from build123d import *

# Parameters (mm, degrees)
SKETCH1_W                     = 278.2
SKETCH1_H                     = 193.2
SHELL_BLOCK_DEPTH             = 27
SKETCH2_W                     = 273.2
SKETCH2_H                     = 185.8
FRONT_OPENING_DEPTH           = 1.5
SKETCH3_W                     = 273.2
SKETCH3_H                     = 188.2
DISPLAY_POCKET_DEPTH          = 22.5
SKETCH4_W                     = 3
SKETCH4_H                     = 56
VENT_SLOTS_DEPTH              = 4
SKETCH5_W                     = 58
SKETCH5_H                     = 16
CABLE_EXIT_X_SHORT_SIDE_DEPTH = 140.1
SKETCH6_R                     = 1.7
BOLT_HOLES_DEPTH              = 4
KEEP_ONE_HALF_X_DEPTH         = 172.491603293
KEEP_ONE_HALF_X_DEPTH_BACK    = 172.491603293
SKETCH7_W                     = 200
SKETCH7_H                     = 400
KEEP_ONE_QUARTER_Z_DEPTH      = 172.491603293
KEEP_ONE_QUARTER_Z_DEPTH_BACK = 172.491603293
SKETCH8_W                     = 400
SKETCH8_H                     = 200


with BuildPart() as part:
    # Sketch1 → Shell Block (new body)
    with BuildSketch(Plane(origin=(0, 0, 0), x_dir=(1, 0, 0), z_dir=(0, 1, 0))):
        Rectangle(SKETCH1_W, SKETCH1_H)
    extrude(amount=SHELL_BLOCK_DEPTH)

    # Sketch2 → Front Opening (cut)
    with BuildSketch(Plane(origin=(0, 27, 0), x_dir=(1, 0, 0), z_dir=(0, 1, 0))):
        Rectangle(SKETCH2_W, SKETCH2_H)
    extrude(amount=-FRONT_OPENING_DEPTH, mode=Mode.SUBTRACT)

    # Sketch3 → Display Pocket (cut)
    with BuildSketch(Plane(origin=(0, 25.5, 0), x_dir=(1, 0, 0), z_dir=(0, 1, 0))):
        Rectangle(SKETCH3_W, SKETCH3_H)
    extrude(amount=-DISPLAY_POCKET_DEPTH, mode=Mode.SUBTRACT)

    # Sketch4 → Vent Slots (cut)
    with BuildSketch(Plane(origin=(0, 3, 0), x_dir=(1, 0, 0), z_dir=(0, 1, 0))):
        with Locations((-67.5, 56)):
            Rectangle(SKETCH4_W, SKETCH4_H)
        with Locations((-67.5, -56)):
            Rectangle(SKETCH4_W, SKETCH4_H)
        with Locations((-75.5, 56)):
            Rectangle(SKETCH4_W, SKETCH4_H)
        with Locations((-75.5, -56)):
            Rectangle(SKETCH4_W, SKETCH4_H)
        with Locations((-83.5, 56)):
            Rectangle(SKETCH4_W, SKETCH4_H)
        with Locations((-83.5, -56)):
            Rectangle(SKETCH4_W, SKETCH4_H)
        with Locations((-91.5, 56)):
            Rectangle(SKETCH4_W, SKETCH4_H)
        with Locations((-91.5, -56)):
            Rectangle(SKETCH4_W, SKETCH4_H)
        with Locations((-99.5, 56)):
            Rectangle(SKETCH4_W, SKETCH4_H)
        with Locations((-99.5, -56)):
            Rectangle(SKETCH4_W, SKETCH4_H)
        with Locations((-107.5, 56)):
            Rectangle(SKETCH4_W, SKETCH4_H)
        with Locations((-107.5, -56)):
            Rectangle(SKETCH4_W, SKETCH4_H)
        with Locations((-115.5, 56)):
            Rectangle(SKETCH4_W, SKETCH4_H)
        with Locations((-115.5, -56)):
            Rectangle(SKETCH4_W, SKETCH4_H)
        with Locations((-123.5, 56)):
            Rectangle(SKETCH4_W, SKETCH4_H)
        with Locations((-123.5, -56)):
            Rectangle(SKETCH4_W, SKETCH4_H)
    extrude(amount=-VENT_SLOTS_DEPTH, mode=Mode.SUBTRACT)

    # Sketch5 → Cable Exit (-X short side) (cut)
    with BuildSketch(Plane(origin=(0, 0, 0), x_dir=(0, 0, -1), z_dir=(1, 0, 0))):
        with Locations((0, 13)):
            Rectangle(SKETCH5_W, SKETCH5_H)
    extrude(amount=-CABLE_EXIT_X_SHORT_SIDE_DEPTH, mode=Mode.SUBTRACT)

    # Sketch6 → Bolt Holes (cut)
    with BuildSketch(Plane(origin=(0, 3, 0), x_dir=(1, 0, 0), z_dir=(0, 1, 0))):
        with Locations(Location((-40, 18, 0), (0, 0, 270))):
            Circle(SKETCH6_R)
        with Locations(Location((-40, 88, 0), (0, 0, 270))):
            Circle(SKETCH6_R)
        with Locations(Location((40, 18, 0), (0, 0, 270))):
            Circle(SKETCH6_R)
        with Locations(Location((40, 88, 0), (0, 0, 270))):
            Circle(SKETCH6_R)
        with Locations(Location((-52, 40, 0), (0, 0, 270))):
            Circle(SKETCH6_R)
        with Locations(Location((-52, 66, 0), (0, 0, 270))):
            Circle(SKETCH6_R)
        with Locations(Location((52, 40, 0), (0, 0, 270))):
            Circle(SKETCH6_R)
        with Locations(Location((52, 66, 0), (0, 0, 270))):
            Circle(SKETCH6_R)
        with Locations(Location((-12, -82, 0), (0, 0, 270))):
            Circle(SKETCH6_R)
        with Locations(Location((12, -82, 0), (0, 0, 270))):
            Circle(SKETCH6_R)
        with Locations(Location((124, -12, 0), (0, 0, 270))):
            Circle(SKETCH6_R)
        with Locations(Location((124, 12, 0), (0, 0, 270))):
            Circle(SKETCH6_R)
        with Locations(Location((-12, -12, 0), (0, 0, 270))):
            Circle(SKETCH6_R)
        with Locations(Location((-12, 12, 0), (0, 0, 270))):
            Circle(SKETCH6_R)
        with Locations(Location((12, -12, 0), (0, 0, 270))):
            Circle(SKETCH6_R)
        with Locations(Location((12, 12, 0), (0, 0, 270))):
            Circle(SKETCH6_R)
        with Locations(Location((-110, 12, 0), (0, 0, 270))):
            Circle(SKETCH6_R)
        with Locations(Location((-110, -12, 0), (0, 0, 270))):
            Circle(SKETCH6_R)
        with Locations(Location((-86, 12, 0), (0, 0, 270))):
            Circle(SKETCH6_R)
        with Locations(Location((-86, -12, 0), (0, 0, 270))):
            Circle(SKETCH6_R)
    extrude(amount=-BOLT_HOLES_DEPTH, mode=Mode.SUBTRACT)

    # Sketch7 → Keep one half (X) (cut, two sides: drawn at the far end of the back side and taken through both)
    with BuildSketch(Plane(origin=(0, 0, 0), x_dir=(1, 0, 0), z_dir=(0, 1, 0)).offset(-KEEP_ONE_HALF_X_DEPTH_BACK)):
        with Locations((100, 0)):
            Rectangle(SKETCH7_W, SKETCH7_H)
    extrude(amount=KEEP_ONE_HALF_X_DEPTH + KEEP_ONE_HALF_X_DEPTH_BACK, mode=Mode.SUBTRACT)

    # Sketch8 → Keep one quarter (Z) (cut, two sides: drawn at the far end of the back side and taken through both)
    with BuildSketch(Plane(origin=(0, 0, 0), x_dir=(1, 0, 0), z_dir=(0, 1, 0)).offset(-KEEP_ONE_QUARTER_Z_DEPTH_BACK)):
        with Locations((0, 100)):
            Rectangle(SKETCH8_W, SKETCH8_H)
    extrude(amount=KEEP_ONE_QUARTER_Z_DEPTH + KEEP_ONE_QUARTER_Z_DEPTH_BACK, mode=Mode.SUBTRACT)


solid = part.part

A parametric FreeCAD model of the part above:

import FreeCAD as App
import Part
import Sketcher
from FreeCAD import Vector


def add_polygon(sketch, points):
    """Adds a closed chain of lines whose ends are joined by coincident constraints."""
    first, n = sketch.GeometryCount, len(points)
    for a, b in zip(points, points[1:] + points[:1]):
        sketch.addGeometry(Part.LineSegment(App.Vector(*a, 0), App.Vector(*b, 0)), False)
    for i in range(n):
        sketch.addConstraint(Sketcher.Constraint("Coincident", first + i, 2, first + (i + 1) % n, 1))

doc = App.newDocument("Part")
body = doc.addObject("PartDesign::Body", "Body")

sketch1 = body.newObject("Sketcher::SketchObject", "Sketch")
sketch1.AttachmentSupport = (doc.getObject("XZ_Plane"), [""])
sketch1.MapMode = "FlatFace"
add_polygon(sketch1, [(-139, -97), (-139, 97), (139, 97), (139, -97)])
sketch1.addConstraint(Sketcher.Constraint("Vertical", 0))
sketch1.addConstraint(Sketcher.Constraint("Horizontal", 1))
sketch1.addConstraint(Sketcher.Constraint("Vertical", 2))
sketch1.addConstraint(Sketcher.Constraint("Horizontal", 3))
sketch1.addConstraint(Sketcher.Constraint("Symmetric", 0, 2, 2, 2, -1, 1))
sketch1.addConstraint(Sketcher.Constraint("DistanceX", 1, 1, 1, 2, 278.2))
sketch1.addConstraint(Sketcher.Constraint("DistanceY", 0, 1, 0, 2, 193.2))
pad1 = body.newObject("PartDesign::Pad", "Pad")
pad1.Profile = sketch1
pad1.Length = 27
pad1.Reversed = True

sketch2 = body.newObject("Sketcher::SketchObject", "Sketch001")
sketch2.AttachmentSupport = (doc.getObject("XZ_Plane"), [""])
sketch2.MapMode = "FlatFace"
sketch2.AttachmentOffset = App.Placement(Vector(0, 0, -27), App.Rotation())
add_polygon(sketch2, [(-137, -93), (-137, 93), (137, 93), (137, -93)])
sketch2.addConstraint(Sketcher.Constraint("Vertical", 0))
sketch2.addConstraint(Sketcher.Constraint("Horizontal", 1))
sketch2.addConstraint(Sketcher.Constraint("Vertical", 2))
sketch2.addConstraint(Sketcher.Constraint("Horizontal", 3))
sketch2.addConstraint(Sketcher.Constraint("Symmetric", 0, 2, 2, 2, -1, 1))
sketch2.addConstraint(Sketcher.Constraint("DistanceX", 1, 1, 1, 2, 273.2))
sketch2.addConstraint(Sketcher.Constraint("DistanceY", 0, 1, 0, 2, 185.8))
pocket1 = body.newObject("PartDesign::Pocket", "Pocket")
pocket1.Profile = sketch2
pocket1.Length = 1.5
pocket1.Reversed = True

sketch3 = body.newObject("Sketcher::SketchObject", "Sketch002")
sketch3.AttachmentSupport = (doc.getObject("XZ_Plane"), [""])
sketch3.MapMode = "FlatFace"
sketch3.AttachmentOffset = App.Placement(Vector(0, 0, -25.5), App.Rotation())
add_polygon(sketch3, [(-137, -94), (-137, 94), (137, 94), (137, -94)])
sketch3.addConstraint(Sketcher.Constraint("Vertical", 0))
sketch3.addConstraint(Sketcher.Constraint("Horizontal", 1))
sketch3.addConstraint(Sketcher.Constraint("Vertical", 2))
sketch3.addConstraint(Sketcher.Constraint("Horizontal", 3))
sketch3.addConstraint(Sketcher.Constraint("Symmetric", 0, 2, 2, 2, -1, 1))
sketch3.addConstraint(Sketcher.Constraint("DistanceX", 1, 1, 1, 2, 273.2))
sketch3.addConstraint(Sketcher.Constraint("DistanceY", 0, 1, 0, 2, 188.2))
pocket2 = body.newObject("PartDesign::Pocket", "Pocket001")
pocket2.Profile = sketch3
pocket2.Length = 22.5
pocket2.Reversed = True

sketch4 = body.newObject("Sketcher::SketchObject", "Sketch003")
sketch4.AttachmentSupport = (doc.getObject("XZ_Plane"), [""])
sketch4.MapMode = "FlatFace"
sketch4.AttachmentOffset = App.Placement(Vector(0, 0, -3), App.Rotation())
add_polygon(sketch4, [(-69, -84), (-69, -28), (-66, -28), (-66, -84)])
add_polygon(sketch4, [(-69, 28), (-69, 84), (-66, 84), (-66, 28)])
add_polygon(sketch4, [(-77, -84), (-77, -28), (-74, -28), (-74, -84)])
add_polygon(sketch4, [(-77, 28), (-77, 84), (-74, 84), (-74, 28)])
add_polygon(sketch4, [(-85, -84), (-85, -28), (-82, -28), (-82, -84)])
add_polygon(sketch4, [(-85, 28), (-85, 84), (-82, 84), (-82, 28)])
add_polygon(sketch4, [(-93, -84), (-93, -28), (-90, -28), (-90, -84)])
add_polygon(sketch4, [(-93, 28), (-93, 84), (-90, 84), (-90, 28)])
add_polygon(sketch4, [(-101, -84), (-101, -28), (-98, -28), (-98, -84)])
add_polygon(sketch4, [(-101, 28), (-101, 84), (-98, 84), (-98, 28)])
add_polygon(sketch4, [(-109, -84), (-109, -28), (-106, -28), (-106, -84)])
add_polygon(sketch4, [(-109, 28), (-109, 84), (-106, 84), (-106, 28)])
add_polygon(sketch4, [(-117, -84), (-117, -28), (-114, -28), (-114, -84)])
add_polygon(sketch4, [(-117, 28), (-117, 84), (-114, 84), (-114, 28)])
add_polygon(sketch4, [(-125, -84), (-125, -28), (-122, -28), (-122, -84)])
add_polygon(sketch4, [(-125, 28), (-125, 84), (-122, 84), (-122, 28)])
sketch4.addConstraint(Sketcher.Constraint("Vertical", 0))
sketch4.addConstraint(Sketcher.Constraint("Horizontal", 1))
sketch4.addConstraint(Sketcher.Constraint("Vertical", 2))
sketch4.addConstraint(Sketcher.Constraint("Horizontal", 3))
sketch4.addConstraint(Sketcher.Constraint("Vertical", 4))
sketch4.addConstraint(Sketcher.Constraint("Horizontal", 5))
sketch4.addConstraint(Sketcher.Constraint("Vertical", 6))
sketch4.addConstraint(Sketcher.Constraint("Horizontal", 7))
sketch4.addConstraint(Sketcher.Constraint("Vertical", 8))
sketch4.addConstraint(Sketcher.Constraint("Horizontal", 9))
sketch4.addConstraint(Sketcher.Constraint("Vertical", 10))
sketch4.addConstraint(Sketcher.Constraint("Horizontal", 11))
sketch4.addConstraint(Sketcher.Constraint("Vertical", 12))
sketch4.addConstraint(Sketcher.Constraint("Horizontal", 13))
sketch4.addConstraint(Sketcher.Constraint("Vertical", 14))
sketch4.addConstraint(Sketcher.Constraint("Horizontal", 15))
sketch4.addConstraint(Sketcher.Constraint("Vertical", 16))
sketch4.addConstraint(Sketcher.Constraint("Horizontal", 17))
sketch4.addConstraint(Sketcher.Constraint("Vertical", 18))
sketch4.addConstraint(Sketcher.Constraint("Horizontal", 19))
sketch4.addConstraint(Sketcher.Constraint("Vertical", 20))
sketch4.addConstraint(Sketcher.Constraint("Horizontal", 21))
sketch4.addConstraint(Sketcher.Constraint("Vertical", 22))
sketch4.addConstraint(Sketcher.Constraint("Horizontal", 23))
sketch4.addConstraint(Sketcher.Constraint("Vertical", 24))
sketch4.addConstraint(Sketcher.Constraint("Horizontal", 25))
sketch4.addConstraint(Sketcher.Constraint("Vertical", 26))
sketch4.addConstraint(Sketcher.Constraint("Horizontal", 27))
sketch4.addConstraint(Sketcher.Constraint("Vertical", 28))
sketch4.addConstraint(Sketcher.Constraint("Horizontal", 29))
sketch4.addConstraint(Sketcher.Constraint("Vertical", 30))
sketch4.addConstraint(Sketcher.Constraint("Horizontal", 31))
sketch4.addConstraint(Sketcher.Constraint("Vertical", 32))
sketch4.addConstraint(Sketcher.Constraint("Horizontal", 33))
sketch4.addConstraint(Sketcher.Constraint("Vertical", 34))
sketch4.addConstraint(Sketcher.Constraint("Horizontal", 35))
sketch4.addConstraint(Sketcher.Constraint("Vertical", 36))
sketch4.addConstraint(Sketcher.Constraint("Horizontal", 37))
sketch4.addConstraint(Sketcher.Constraint("Vertical", 38))
sketch4.addConstraint(Sketcher.Constraint("Horizontal", 39))
sketch4.addConstraint(Sketcher.Constraint("Vertical", 40))
sketch4.addConstraint(Sketcher.Constraint("Horizontal", 41))
sketch4.addConstraint(Sketcher.Constraint("Vertical", 42))
sketch4.addConstraint(Sketcher.Constraint("Horizontal", 43))
sketch4.addConstraint(Sketcher.Constraint("Vertical", 44))
sketch4.addConstraint(Sketcher.Constraint("Horizontal", 45))
sketch4.addConstraint(Sketcher.Constraint("Vertical", 46))
sketch4.addConstraint(Sketcher.Constraint("Horizontal", 47))
sketch4.addConstraint(Sketcher.Constraint("Vertical", 48))
sketch4.addConstraint(Sketcher.Constraint("Horizontal", 49))
sketch4.addConstraint(Sketcher.Constraint("Vertical", 50))
sketch4.addConstraint(Sketcher.Constraint("Horizontal", 51))
sketch4.addConstraint(Sketcher.Constraint("Vertical", 52))
sketch4.addConstraint(Sketcher.Constraint("Horizontal", 53))
sketch4.addConstraint(Sketcher.Constraint("Vertical", 54))
sketch4.addConstraint(Sketcher.Constraint("Horizontal", 55))
sketch4.addConstraint(Sketcher.Constraint("Vertical", 56))
sketch4.addConstraint(Sketcher.Constraint("Horizontal", 57))
sketch4.addConstraint(Sketcher.Constraint("Vertical", 58))
sketch4.addConstraint(Sketcher.Constraint("Horizontal", 59))
sketch4.addConstraint(Sketcher.Constraint("Vertical", 60))
sketch4.addConstraint(Sketcher.Constraint("Horizontal", 61))
sketch4.addConstraint(Sketcher.Constraint("Vertical", 62))
sketch4.addConstraint(Sketcher.Constraint("Horizontal", 63))
sketch4.addConstraint(Sketcher.Constraint("Symmetric", 3, 2, 4, 2, -1))
sketch4.addConstraint(Sketcher.Constraint("Symmetric", 1, 2, 6, 2, -1))
sketch4.addConstraint(Sketcher.Constraint("Symmetric", 11, 2, 12, 2, -1))
sketch4.addConstraint(Sketcher.Constraint("Symmetric", 9, 2, 14, 2, -1))
sketch4.addConstraint(Sketcher.Constraint("Symmetric", 19, 2, 20, 2, -1))
sketch4.addConstraint(Sketcher.Constraint("Symmetric", 17, 2, 22, 2, -1))
sketch4.addConstraint(Sketcher.Constraint("Symmetric", 27, 2, 28, 2, -1))
sketch4.addConstraint(Sketcher.Constraint("Symmetric", 25, 2, 30, 2, -1))
sketch4.addConstraint(Sketcher.Constraint("Symmetric", 35, 2, 36, 2, -1))
sketch4.addConstraint(Sketcher.Constraint("Symmetric", 33, 2, 38, 2, -1))
sketch4.addConstraint(Sketcher.Constraint("Symmetric", 43, 2, 44, 2, -1))
sketch4.addConstraint(Sketcher.Constraint("Symmetric", 41, 2, 46, 2, -1))
sketch4.addConstraint(Sketcher.Constraint("Symmetric", 51, 2, 52, 2, -1))
sketch4.addConstraint(Sketcher.Constraint("Symmetric", 49, 2, 54, 2, -1))
sketch4.addConstraint(Sketcher.Constraint("Symmetric", 59, 2, 60, 2, -1))
sketch4.addConstraint(Sketcher.Constraint("Symmetric", 57, 2, 62, 2, -1))
sketch4.addConstraint(Sketcher.Constraint("Horizontal", 1, 2, 8, 2))
sketch4.addConstraint(Sketcher.Constraint("Horizontal", 3, 2, 10, 2))
sketch4.addConstraint(Sketcher.Constraint("Horizontal", 9, 2, 16, 2))
sketch4.addConstraint(Sketcher.Constraint("Horizontal", 11, 2, 18, 2))
sketch4.addConstraint(Sketcher.Constraint("Horizontal", 17, 2, 24, 2))
sketch4.addConstraint(Sketcher.Constraint("Horizontal", 19, 2, 26, 2))
sketch4.addConstraint(Sketcher.Constraint("Horizontal", 25, 2, 32, 2))
sketch4.addConstraint(Sketcher.Constraint("Horizontal", 27, 2, 34, 2))
sketch4.addConstraint(Sketcher.Constraint("Horizontal", 33, 2, 40, 2))
sketch4.addConstraint(Sketcher.Constraint("Horizontal", 35, 2, 42, 2))
sketch4.addConstraint(Sketcher.Constraint("Horizontal", 41, 2, 48, 2))
sketch4.addConstraint(Sketcher.Constraint("Horizontal", 43, 2, 50, 2))
sketch4.addConstraint(Sketcher.Constraint("Horizontal", 49, 2, 56, 2))
sketch4.addConstraint(Sketcher.Constraint("Horizontal", 51, 2, 58, 2))
sketch4.addConstraint(Sketcher.Constraint("Equal", 7, 9))
sketch4.addConstraint(Sketcher.Constraint("Equal", 15, 17))
sketch4.addConstraint(Sketcher.Constraint("Equal", 23, 25))
sketch4.addConstraint(Sketcher.Constraint("Equal", 31, 33))
sketch4.addConstraint(Sketcher.Constraint("Equal", 39, 41))
sketch4.addConstraint(Sketcher.Constraint("Equal", 47, 49))
sketch4.addConstraint(Sketcher.Constraint("Equal", 55, 57))
sketch4.addConstraint(Sketcher.Constraint("DistanceX", 1, 1, 1, 2, 3.0))
sketch4.addConstraint(Sketcher.Constraint("DistanceY", 0, 1, 0, 2, 56.0))
sketch4.addConstraint(Sketcher.Constraint("DistanceX", 0, 2, -1, 1, 69.0))
sketch4.addConstraint(Sketcher.Constraint("DistanceY", 0, 2, -1, 1, 28.0))
sketch4.addConstraint(Sketcher.Constraint("DistanceX", 8, 2, -1, 1, 77.0))
sketch4.addConstraint(Sketcher.Constraint("DistanceX", 16, 2, -1, 1, 85.0))
sketch4.addConstraint(Sketcher.Constraint("DistanceX", 24, 2, -1, 1, 93.0))
sketch4.addConstraint(Sketcher.Constraint("DistanceX", 32, 2, -1, 1, 101.0))
sketch4.addConstraint(Sketcher.Constraint("DistanceX", 40, 2, -1, 1, 109.0))
sketch4.addConstraint(Sketcher.Constraint("DistanceX", 48, 2, -1, 1, 117.0))
sketch4.addConstraint(Sketcher.Constraint("DistanceX", 56, 2, -1, 1, 125.0))
pocket3 = body.newObject("PartDesign::Pocket", "Pocket002")
pocket3.Profile = sketch4
pocket3.Length = 4
pocket3.Reversed = True

sketch5 = body.newObject("Sketcher::SketchObject", "Sketch004")
sketch5.AttachmentSupport = (doc.getObject("YZ_Plane"), [""])
sketch5.MapMode = "FlatFace"
add_polygon(sketch5, [(21, 29), (5, 29), (5, -29), (21, -29)])
sketch5.addConstraint(Sketcher.Constraint("Horizontal", 0))
sketch5.addConstraint(Sketcher.Constraint("Vertical", 1))
sketch5.addConstraint(Sketcher.Constraint("Horizontal", 2))
sketch5.addConstraint(Sketcher.Constraint("Vertical", 3))
sketch5.addConstraint(Sketcher.Constraint("DistanceX", 0, 2, 0, 1, 16.0))
sketch5.addConstraint(Sketcher.Constraint("DistanceY", 1, 2, 1, 1, 58.0))
sketch5.addConstraint(Sketcher.Constraint("DistanceX", -1, 1, 0, 2, 5.0))
sketch5.addConstraint(Sketcher.Constraint("DistanceY", -1, 1, 0, 2, 29.0))
pocket4 = body.newObject("PartDesign::Pocket", "Pocket003")
pocket4.Profile = sketch5
pocket4.Length = 140.1

sketch6 = body.newObject("Sketcher::SketchObject", "Sketch005")
sketch6.AttachmentSupport = (doc.getObject("XZ_Plane"), [""])
sketch6.MapMode = "FlatFace"
sketch6.AttachmentOffset = App.Placement(Vector(0, 0, -3), App.Rotation())
sketch6.addGeometry(Part.Circle(Vector(-40, -18, 0), Vector(0, 0, 1), 1.7), False)
sketch6.addGeometry(Part.Circle(Vector(-40, -88, 0), Vector(0, 0, 1), 1.7), False)
sketch6.addGeometry(Part.Circle(Vector(40, -18, 0), Vector(0, 0, 1), 1.7), False)
sketch6.addGeometry(Part.Circle(Vector(40, -88, 0), Vector(0, 0, 1), 1.7), False)
sketch6.addGeometry(Part.Circle(Vector(-52, -40, 0), Vector(0, 0, 1), 1.7), False)
sketch6.addGeometry(Part.Circle(Vector(-52, -66, 0), Vector(0, 0, 1), 1.7), False)
sketch6.addGeometry(Part.Circle(Vector(52, -40, 0), Vector(0, 0, 1), 1.7), False)
sketch6.addGeometry(Part.Circle(Vector(52, -66, 0), Vector(0, 0, 1), 1.7), False)
sketch6.addGeometry(Part.Circle(Vector(-12, 82, 0), Vector(0, 0, 1), 1.7), False)
sketch6.addGeometry(Part.Circle(Vector(12, 82, 0), Vector(0, 0, 1), 1.7), False)
sketch6.addGeometry(Part.Circle(Vector(124, 12, 0), Vector(0, 0, 1), 1.7), False)
sketch6.addGeometry(Part.Circle(Vector(124, -12, 0), Vector(0, 0, 1), 1.7), False)
sketch6.addGeometry(Part.Circle(Vector(-12, 12, 0), Vector(0, 0, 1), 1.7), False)
sketch6.addGeometry(Part.Circle(Vector(-12, -12, 0), Vector(0, 0, 1), 1.7), False)
sketch6.addGeometry(Part.Circle(Vector(12, 12, 0), Vector(0, 0, 1), 1.7), False)
sketch6.addGeometry(Part.Circle(Vector(12, -12, 0), Vector(0, 0, 1), 1.7), False)
sketch6.addGeometry(Part.Circle(Vector(-110, -12, 0), Vector(0, 0, 1), 1.7), False)
sketch6.addGeometry(Part.Circle(Vector(-110, 12, 0), Vector(0, 0, 1), 1.7), False)
sketch6.addGeometry(Part.Circle(Vector(-86, -12, 0), Vector(0, 0, 1), 1.7), False)
sketch6.addGeometry(Part.Circle(Vector(-86, 12, 0), Vector(0, 0, 1), 1.7), False)
sketch6.addConstraint(Sketcher.Constraint("Equal", 0, 1))
sketch6.addConstraint(Sketcher.Constraint("Equal", 1, 2))
sketch6.addConstraint(Sketcher.Constraint("Equal", 2, 3))
sketch6.addConstraint(Sketcher.Constraint("Equal", 3, 4))
sketch6.addConstraint(Sketcher.Constraint("Equal", 4, 5))
sketch6.addConstraint(Sketcher.Constraint("Equal", 5, 6))
sketch6.addConstraint(Sketcher.Constraint("Equal", 6, 7))
sketch6.addConstraint(Sketcher.Constraint("Equal", 7, 8))
sketch6.addConstraint(Sketcher.Constraint("Equal", 8, 9))
sketch6.addConstraint(Sketcher.Constraint("Equal", 9, 10))
sketch6.addConstraint(Sketcher.Constraint("Equal", 10, 11))
sketch6.addConstraint(Sketcher.Constraint("Equal", 11, 12))
sketch6.addConstraint(Sketcher.Constraint("Equal", 12, 13))
sketch6.addConstraint(Sketcher.Constraint("Equal", 13, 14))
sketch6.addConstraint(Sketcher.Constraint("Equal", 14, 15))
sketch6.addConstraint(Sketcher.Constraint("Equal", 15, 16))
sketch6.addConstraint(Sketcher.Constraint("Equal", 16, 17))
sketch6.addConstraint(Sketcher.Constraint("Equal", 17, 18))
sketch6.addConstraint(Sketcher.Constraint("Equal", 18, 19))
sketch6.addConstraint(Sketcher.Constraint("Symmetric", 13, 3, 14, 3, -1, 1))
sketch6.addConstraint(Sketcher.Constraint("Symmetric", 12, 3, 15, 3, -1, 1))
sketch6.addConstraint(Sketcher.Constraint("Symmetric", 0, 3, 2, 3, -2))
sketch6.addConstraint(Sketcher.Constraint("Symmetric", 1, 3, 3, 3, -2))
sketch6.addConstraint(Sketcher.Constraint("Symmetric", 4, 3, 6, 3, -2))
sketch6.addConstraint(Sketcher.Constraint("Symmetric", 5, 3, 7, 3, -2))
sketch6.addConstraint(Sketcher.Constraint("Symmetric", 8, 3, 9, 3, -2))
sketch6.addConstraint(Sketcher.Constraint("Symmetric", 12, 3, 14, 3, -2))
sketch6.addConstraint(Sketcher.Constraint("Symmetric", 10, 3, 11, 3, -1))
sketch6.addConstraint(Sketcher.Constraint("Symmetric", 16, 3, 17, 3, -1))
sketch6.addConstraint(Sketcher.Constraint("Symmetric", 18, 3, 19, 3, -1))
sketch6.addConstraint(Sketcher.Constraint("Horizontal", 10, 3, 12, 3))
sketch6.addConstraint(Sketcher.Constraint("Horizontal", 15, 3, 16, 3))
sketch6.addConstraint(Sketcher.Constraint("Horizontal", 16, 3, 18, 3))
sketch6.addConstraint(Sketcher.Constraint("Vertical", 0, 3, 1, 3))
sketch6.addConstraint(Sketcher.Constraint("Vertical", 4, 3, 5, 3))
sketch6.addConstraint(Sketcher.Constraint("Vertical", 8, 3, 12, 3))
sketch6.addConstraint(Sketcher.Constraint("Diameter", 0, 3.4))
sketch6.addConstraint(Sketcher.Constraint("DistanceX", 0, 3, -1, 1, 40.0))
sketch6.addConstraint(Sketcher.Constraint("DistanceY", 0, 3, -1, 1, 18.0))
sketch6.addConstraint(Sketcher.Constraint("DistanceY", 1, 3, -1, 1, 88.0))
sketch6.addConstraint(Sketcher.Constraint("DistanceX", 4, 3, -1, 1, 52.0))
sketch6.addConstraint(Sketcher.Constraint("DistanceY", 4, 3, -1, 1, 40.0))
sketch6.addConstraint(Sketcher.Constraint("DistanceY", 5, 3, -1, 1, 66.0))
sketch6.addConstraint(Sketcher.Constraint("DistanceX", 8, 3, -1, 1, 12.0))
sketch6.addConstraint(Sketcher.Constraint("DistanceY", -1, 1, 8, 3, 82.0))
sketch6.addConstraint(Sketcher.Constraint("DistanceX", -1, 1, 10, 3, 124.0))
sketch6.addConstraint(Sketcher.Constraint("DistanceY", -1, 1, 10, 3, 12.0))
sketch6.addConstraint(Sketcher.Constraint("DistanceX", 16, 3, -1, 1, 110.0))
sketch6.addConstraint(Sketcher.Constraint("DistanceX", 18, 3, -1, 1, 86.0))
pocket5 = body.newObject("PartDesign::Pocket", "Pocket004")
pocket5.Profile = sketch6
pocket5.Length = 4
pocket5.Reversed = True

sketch7 = body.newObject("Sketcher::SketchObject", "Sketch006")
sketch7.AttachmentSupport = (doc.getObject("XZ_Plane"), [""])
sketch7.MapMode = "FlatFace"
add_polygon(sketch7, [(0, -200), (0, 200), (200, 200), (200, -200)])
sketch7.addConstraint(Sketcher.Constraint("Vertical", 0))
sketch7.addConstraint(Sketcher.Constraint("Horizontal", 1))
sketch7.addConstraint(Sketcher.Constraint("Vertical", 2))
sketch7.addConstraint(Sketcher.Constraint("Horizontal", 3))
sketch7.addConstraint(Sketcher.Constraint("Symmetric", 0, 2, 3, 2, -1, 1))
sketch7.addConstraint(Sketcher.Constraint("DistanceX", 1, 1, 1, 2, 200.0))
sketch7.addConstraint(Sketcher.Constraint("DistanceY", 0, 1, 0, 2, 400.0))
pocket6 = body.newObject("PartDesign::Pocket", "Pocket005")
pocket6.Profile = sketch7
pocket6.Type = "ThroughAll"
pocket6.Midplane = True

sketch8 = body.newObject("Sketcher::SketchObject", "Sketch007")
sketch8.AttachmentSupport = (doc.getObject("XZ_Plane"), [""])
sketch8.MapMode = "FlatFace"
add_polygon(sketch8, [(-200, -200), (-200, 0), (200, 0), (200, -200)])
sketch8.addConstraint(Sketcher.Constraint("Vertical", 0))
sketch8.addConstraint(Sketcher.Constraint("Horizontal", 1))
sketch8.addConstraint(Sketcher.Constraint("Vertical", 2))
sketch8.addConstraint(Sketcher.Constraint("Horizontal", 3))
sketch8.addConstraint(Sketcher.Constraint("Symmetric", 0, 2, 1, 2, -1, 1))
sketch8.addConstraint(Sketcher.Constraint("DistanceX", 1, 1, 1, 2, 400.0))
sketch8.addConstraint(Sketcher.Constraint("DistanceY", 0, 1, 0, 2, 200.0))
pocket7 = body.newObject("PartDesign::Pocket", "Pocket006")
pocket7.Profile = sketch8
pocket7.Type = "ThroughAll"
pocket7.Midplane = True

doc.recompute()
